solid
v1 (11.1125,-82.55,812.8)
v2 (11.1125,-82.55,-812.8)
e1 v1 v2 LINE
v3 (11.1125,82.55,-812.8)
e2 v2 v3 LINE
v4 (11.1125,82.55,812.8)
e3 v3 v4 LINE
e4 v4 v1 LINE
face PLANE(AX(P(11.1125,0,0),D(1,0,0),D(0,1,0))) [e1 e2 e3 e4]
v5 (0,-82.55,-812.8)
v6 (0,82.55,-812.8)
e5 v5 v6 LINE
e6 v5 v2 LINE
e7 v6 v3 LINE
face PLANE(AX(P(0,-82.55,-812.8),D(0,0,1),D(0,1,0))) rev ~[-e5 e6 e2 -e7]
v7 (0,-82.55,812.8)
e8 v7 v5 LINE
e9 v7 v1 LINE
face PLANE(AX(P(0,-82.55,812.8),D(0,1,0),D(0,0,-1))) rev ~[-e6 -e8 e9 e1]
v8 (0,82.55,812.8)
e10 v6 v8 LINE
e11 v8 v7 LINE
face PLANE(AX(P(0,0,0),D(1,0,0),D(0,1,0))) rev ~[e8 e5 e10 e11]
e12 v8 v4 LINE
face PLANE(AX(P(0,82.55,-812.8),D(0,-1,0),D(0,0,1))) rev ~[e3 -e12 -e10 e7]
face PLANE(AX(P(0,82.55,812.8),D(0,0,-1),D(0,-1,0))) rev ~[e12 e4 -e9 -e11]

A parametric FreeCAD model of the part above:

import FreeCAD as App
import Part
import Sketcher
from FreeCAD import Vector
Q = App.Units.Quantity

doc = App.newDocument("Part")
params = doc.addObject("Spreadsheet::Sheet", "Params")
for row, (alias, value) in enumerate([
    ("sketch1_height", "64 in"),
    ("sketch1_width", "6.5 in"),
    ("pad1_length", "0.4375 in"),
], start=1):
    params.set(f"A{row}", alias)
    params.set(f"B{row}", "=" + value)
    params.setAlias(f"B{row}", alias)

body = doc.addObject("PartDesign::Body", "Body")

# Sketch on YZ plane
sketch1 = doc.addObject("Sketcher::SketchObject", "Sketch")
body.addObject(sketch1)
sketch1.AttachmentSupport = (doc.YZ_Plane, [""])
sketch1.MapMode = "FlatFace"
sketch1.addGeometry([
    Part.LineSegment(Vector(82.55, 812.8, 0), Vector(-82.55, 812.8, 0)),
    Part.LineSegment(Vector(-82.55, 812.8, 0), Vector(-82.55, -812.8, 0)),
    Part.LineSegment(Vector(-82.55, -812.8, 0), Vector(82.55, -812.8, 0)),
    Part.LineSegment(Vector(82.55, -812.8, 0), Vector(82.55, 812.8, 0)),
], False)
sketch1.addConstraint([
    Sketcher.Constraint("Coincident", 0, 2, 1, 1),
    Sketcher.Constraint("Coincident", 1, 2, 2, 1),
    Sketcher.Constraint("Coincident", 2, 2, 3, 1),
    Sketcher.Constraint("Coincident", 3, 2, 0, 1),
    Sketcher.Constraint("Horizontal", 0),
    Sketcher.Constraint("Vertical", 1),
    Sketcher.Constraint("Horizontal", 2),
    Sketcher.Constraint("Vertical", 3),
    Sketcher.Constraint("Symmetric", 0, 2, 2, 2, -1, 1),
    Sketcher.Constraint("DistanceY", 1, 2, 1, 1, Q("64 in")),
    Sketcher.Constraint("DistanceX", 0, 2, 0, 1, Q("6.5 in")),
])
sketch1.setExpression("Constraints[9]", "Params.sketch1_height")
sketch1.setExpression("Constraints[10]", "Params.sketch1_width")
pad1 = doc.addObject("PartDesign::Pad", "Pad")
body.addObject(pad1)
pad1.Profile = sketch1
pad1.setExpression("Length", "Params.pad1_length")

doc.recompute()
